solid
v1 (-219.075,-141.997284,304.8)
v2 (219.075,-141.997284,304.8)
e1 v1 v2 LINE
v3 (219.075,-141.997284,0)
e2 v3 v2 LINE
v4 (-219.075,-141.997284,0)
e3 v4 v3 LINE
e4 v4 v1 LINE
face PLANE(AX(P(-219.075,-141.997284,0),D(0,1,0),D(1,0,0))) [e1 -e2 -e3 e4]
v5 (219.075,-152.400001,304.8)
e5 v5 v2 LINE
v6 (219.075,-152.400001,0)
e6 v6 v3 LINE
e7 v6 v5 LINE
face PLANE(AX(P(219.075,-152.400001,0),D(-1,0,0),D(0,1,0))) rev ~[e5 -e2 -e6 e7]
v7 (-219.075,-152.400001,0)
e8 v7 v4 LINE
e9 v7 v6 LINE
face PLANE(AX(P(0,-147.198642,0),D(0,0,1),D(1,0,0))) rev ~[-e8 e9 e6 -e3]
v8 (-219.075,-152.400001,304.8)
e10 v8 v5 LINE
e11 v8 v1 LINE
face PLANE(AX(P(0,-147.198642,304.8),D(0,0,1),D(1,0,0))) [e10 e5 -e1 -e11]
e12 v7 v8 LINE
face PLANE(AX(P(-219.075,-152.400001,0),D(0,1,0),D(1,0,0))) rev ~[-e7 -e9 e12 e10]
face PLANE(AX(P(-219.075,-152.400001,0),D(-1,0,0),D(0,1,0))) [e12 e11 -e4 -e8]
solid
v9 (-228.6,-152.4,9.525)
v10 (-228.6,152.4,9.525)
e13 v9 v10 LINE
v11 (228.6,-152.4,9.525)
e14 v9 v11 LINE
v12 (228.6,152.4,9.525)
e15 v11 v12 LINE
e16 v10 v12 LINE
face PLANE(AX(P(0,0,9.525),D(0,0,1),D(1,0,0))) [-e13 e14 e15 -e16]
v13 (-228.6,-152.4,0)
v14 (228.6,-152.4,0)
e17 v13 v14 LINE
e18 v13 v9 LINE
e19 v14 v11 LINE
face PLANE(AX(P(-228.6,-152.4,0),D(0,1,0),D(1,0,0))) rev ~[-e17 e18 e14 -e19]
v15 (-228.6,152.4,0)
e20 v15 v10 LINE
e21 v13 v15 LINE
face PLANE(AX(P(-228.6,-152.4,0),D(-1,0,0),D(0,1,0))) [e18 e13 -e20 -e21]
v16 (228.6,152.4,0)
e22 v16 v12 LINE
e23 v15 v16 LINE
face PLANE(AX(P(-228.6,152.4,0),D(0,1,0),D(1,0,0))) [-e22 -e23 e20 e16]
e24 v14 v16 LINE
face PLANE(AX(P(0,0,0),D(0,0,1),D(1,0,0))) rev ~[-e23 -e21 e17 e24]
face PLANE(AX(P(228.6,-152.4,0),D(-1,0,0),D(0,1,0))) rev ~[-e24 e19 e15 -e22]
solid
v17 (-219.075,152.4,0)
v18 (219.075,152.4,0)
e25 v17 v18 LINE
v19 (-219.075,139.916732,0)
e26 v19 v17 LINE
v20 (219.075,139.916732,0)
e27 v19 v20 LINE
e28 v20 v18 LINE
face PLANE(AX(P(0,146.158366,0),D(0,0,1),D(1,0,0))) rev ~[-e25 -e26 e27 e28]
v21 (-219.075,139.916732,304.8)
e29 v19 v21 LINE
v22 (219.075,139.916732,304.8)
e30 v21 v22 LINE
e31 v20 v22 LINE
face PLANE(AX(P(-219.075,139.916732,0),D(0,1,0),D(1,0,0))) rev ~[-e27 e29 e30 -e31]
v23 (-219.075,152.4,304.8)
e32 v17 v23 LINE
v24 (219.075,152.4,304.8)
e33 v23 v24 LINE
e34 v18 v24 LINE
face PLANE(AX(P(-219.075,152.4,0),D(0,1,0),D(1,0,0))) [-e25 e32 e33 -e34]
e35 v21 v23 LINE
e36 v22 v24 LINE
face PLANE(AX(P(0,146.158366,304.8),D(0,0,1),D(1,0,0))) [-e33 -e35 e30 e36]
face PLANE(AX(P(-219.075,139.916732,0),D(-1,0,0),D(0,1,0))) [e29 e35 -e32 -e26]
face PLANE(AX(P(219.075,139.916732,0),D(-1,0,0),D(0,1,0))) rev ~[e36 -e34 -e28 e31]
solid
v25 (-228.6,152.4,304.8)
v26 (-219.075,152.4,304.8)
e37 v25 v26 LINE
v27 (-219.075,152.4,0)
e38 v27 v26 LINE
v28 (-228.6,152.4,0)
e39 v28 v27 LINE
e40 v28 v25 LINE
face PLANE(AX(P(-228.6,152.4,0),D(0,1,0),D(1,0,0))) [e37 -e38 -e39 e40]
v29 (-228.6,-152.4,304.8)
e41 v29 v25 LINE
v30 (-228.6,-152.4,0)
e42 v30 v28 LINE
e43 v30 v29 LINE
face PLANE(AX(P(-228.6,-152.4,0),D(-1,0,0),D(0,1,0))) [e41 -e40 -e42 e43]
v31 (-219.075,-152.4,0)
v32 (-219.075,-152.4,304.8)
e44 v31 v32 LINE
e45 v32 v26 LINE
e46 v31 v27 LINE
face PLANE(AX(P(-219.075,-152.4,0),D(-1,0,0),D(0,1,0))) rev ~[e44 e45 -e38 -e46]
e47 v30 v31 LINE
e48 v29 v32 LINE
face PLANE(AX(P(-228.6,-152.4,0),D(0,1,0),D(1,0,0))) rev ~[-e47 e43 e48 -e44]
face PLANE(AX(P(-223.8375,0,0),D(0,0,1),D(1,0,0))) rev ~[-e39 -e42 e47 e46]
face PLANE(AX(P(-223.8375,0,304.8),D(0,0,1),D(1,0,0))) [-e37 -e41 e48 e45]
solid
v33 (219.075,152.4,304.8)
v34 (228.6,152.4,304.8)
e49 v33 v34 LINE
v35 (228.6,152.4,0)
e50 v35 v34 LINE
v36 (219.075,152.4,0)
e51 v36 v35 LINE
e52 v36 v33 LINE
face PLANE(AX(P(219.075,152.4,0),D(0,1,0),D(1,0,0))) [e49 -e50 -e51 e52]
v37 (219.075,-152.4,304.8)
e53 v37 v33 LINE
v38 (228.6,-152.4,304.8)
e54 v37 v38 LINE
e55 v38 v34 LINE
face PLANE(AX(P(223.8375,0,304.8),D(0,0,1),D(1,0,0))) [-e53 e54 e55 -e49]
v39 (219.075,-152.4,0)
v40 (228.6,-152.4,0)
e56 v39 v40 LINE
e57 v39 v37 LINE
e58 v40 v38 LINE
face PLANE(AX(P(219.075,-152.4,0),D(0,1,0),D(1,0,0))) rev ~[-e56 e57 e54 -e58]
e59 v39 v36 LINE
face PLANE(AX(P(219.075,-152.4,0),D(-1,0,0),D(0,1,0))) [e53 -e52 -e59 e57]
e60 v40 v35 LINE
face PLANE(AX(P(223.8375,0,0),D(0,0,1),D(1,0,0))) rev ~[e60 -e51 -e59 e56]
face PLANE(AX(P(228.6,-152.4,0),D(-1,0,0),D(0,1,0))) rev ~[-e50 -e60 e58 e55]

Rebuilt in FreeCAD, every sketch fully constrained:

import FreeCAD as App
import Part
import Sketcher

V = App.Vector
Q = App.Units.Quantity

doc = App.newDocument("Part")
body = doc.addObject("PartDesign::Body", "Body")
body.AllowCompound = True

sketch1 = body.newObject("Sketcher::SketchObject", "Sketch")
sketch1.AttachmentSupport = (doc.getObject("XY_Plane"), [""])
sketch1.MapMode = "FlatFace"
sketch1.addGeometry(Part.LineSegment(V(-219, 152, 0), V(-219, 140, 0)), False)
sketch1.addGeometry(Part.LineSegment(V(-219, 140, 0), V(219, 140, 0)), False)
sketch1.addGeometry(Part.LineSegment(V(219, 140, 0), V(219, 152, 0)), False)
sketch1.addGeometry(Part.LineSegment(V(219, 152, 0), V(-219, 152, 0)), False)
sketch1.addGeometry(Part.LineSegment(V(-219, -142, 0), V(-219, -152, 0)), False)
sketch1.addGeometry(Part.LineSegment(V(-219, -152, 0), V(219, -152, 0)), False)
sketch1.addGeometry(Part.LineSegment(V(219, -152, 0), V(219, -142, 0)), False)
sketch1.addGeometry(Part.LineSegment(V(219, -142, 0), V(-219, -142, 0)), False)
sketch1.addConstraint(Sketcher.Constraint("Coincident", 0, 2, 1, 1))
sketch1.addConstraint(Sketcher.Constraint("Coincident", 1, 2, 2, 1))
sketch1.addConstraint(Sketcher.Constraint("Coincident", 2, 2, 3, 1))
sketch1.addConstraint(Sketcher.Constraint("Coincident", 3, 2, 0, 1))
sketch1.addConstraint(Sketcher.Constraint("Coincident", 4, 2, 5, 1))
sketch1.addConstraint(Sketcher.Constraint("Coincident", 5, 2, 6, 1))
sketch1.addConstraint(Sketcher.Constraint("Coincident", 6, 2, 7, 1))
sketch1.addConstraint(Sketcher.Constraint("Coincident", 7, 2, 4, 1))
sketch1.addConstraint(Sketcher.Constraint("Vertical", 0))
sketch1.addConstraint(Sketcher.Constraint("Horizontal", 1))
sketch1.addConstraint(Sketcher.Constraint("Vertical", 2))
sketch1.addConstraint(Sketcher.Constraint("Horizontal", 3))
sketch1.addConstraint(Sketcher.Constraint("Vertical", 4))
sketch1.addConstraint(Sketcher.Constraint("Horizontal", 5))
sketch1.addConstraint(Sketcher.Constraint("Vertical", 6))
sketch1.addConstraint(Sketcher.Constraint("Horizontal", 7))
sketch1.addConstraint(Sketcher.Constraint("Symmetric", 2, 2, 4, 2, -1, 1))
sketch1.addConstraint(Sketcher.Constraint("Vertical", 3, 2, 4, 2))
sketch1.addConstraint(Sketcher.Constraint("Vertical", 2, 2, 5, 2))
sketch1.addConstraint(Sketcher.Constraint("DistanceY", -1, 1, 2, 2, Q("6 in")))
sketch1.addConstraint(Sketcher.Constraint("DistanceX", 1, 1, 1, 2, Q("17.25 in")))
sketch1.addConstraint(Sketcher.Constraint("DistanceY", 0, 2, 0, 1, 12.483267))
sketch1.addConstraint(Sketcher.Constraint("DistanceY", 4, 2, 4, 1, 10.402717))
pad1 = body.newObject("PartDesign::Pad", "Pad")
pad1.Profile = sketch1
pad1.Length = Q("12 in")
body2 = doc.addObject("PartDesign::Body", "Body001")
body2.AllowCompound = True

sketch2 = body2.newObject("Sketcher::SketchObject", "Sketch001")
sketch2.AttachmentSupport = (doc.getObject("XY_Plane001"), [""])
sketch2.MapMode = "FlatFace"
sketch2.addGeometry(Part.LineSegment(V(-229, 152, 0), V(-229, -152, 0)), False)
sketch2.addGeometry(Part.LineSegment(V(-229, -152, 0), V(-219, -152, 0)), False)
sketch2.addGeometry(Part.LineSegment(V(-219, -152, 0), V(-219, 152, 0)), False)
sketch2.addGeometry(Part.LineSegment(V(-219, 152, 0), V(-229, 152, 0)), False)
sketch2.addGeometry(Part.LineSegment(V(219, 152, 0), V(219, -152, 0)), False)
sketch2.addGeometry(Part.LineSegment(V(219, -152, 0), V(229, -152, 0)), False)
sketch2.addGeometry(Part.LineSegment(V(229, -152, 0), V(229, 152, 0)), False)
sketch2.addGeometry(Part.LineSegment(V(229, 152, 0), V(219, 152, 0)), False)
sketch2.addConstraint(Sketcher.Constraint("Coincident", 0, 2, 1, 1))
sketch2.addConstraint(Sketcher.Constraint("Coincident", 1, 2, 2, 1))
sketch2.addConstraint(Sketcher.Constraint("Coincident", 2, 2, 3, 1))
sketch2.addConstraint(Sketcher.Constraint("Coincident", 3, 2, 0, 1))
sketch2.addConstraint(Sketcher.Constraint("Coincident", 4, 2, 5, 1))
sketch2.addConstraint(Sketcher.Constraint("Coincident", 5, 2, 6, 1))
sketch2.addConstraint(Sketcher.Constraint("Coincident", 6, 2, 7, 1))
sketch2.addConstraint(Sketcher.Constraint("Coincident", 7, 2, 4, 1))
sketch2.addConstraint(Sketcher.Constraint("Vertical", 0))
sketch2.addConstraint(Sketcher.Constraint("Horizontal", 1))
sketch2.addConstraint(Sketcher.Constraint("Vertical", 2))
sketch2.addConstraint(Sketcher.Constraint("Horizontal", 3))
sketch2.addConstraint(Sketcher.Constraint("Vertical", 4))
sketch2.addConstraint(Sketcher.Constraint("Horizontal", 5))
sketch2.addConstraint(Sketcher.Constraint("Vertical", 6))
sketch2.addConstraint(Sketcher.Constraint("Horizontal", 7))
sketch2.addConstraint(Sketcher.Constraint("Symmetric", 2, 2, 4, 2, -1, 1))
sketch2.addConstraint(Sketcher.Constraint("Symmetric", 0, 2, 6, 2, -1, 1))
sketch2.addConstraint(Sketcher.Constraint("Horizontal", 1, 2, 4, 2))
sketch2.addConstraint(Sketcher.Constraint("DistanceY", 0, 2, 0, 1, Q("12 in")))
sketch2.addConstraint(Sketcher.Constraint("DistanceX", 0, 2, -1, 1, Q("9 in")))
sketch2.addConstraint(Sketcher.Constraint("DistanceX", 1, 1, 1, 2, Q("0.375 in")))
pad2 = body2.newObject("PartDesign::Pad", "Pad001")
pad2.Profile = sketch2
pad2.Length = Q("12 in")
body3 = doc.addObject("PartDesign::Body", "Body002")

sketch3 = body3.newObject("Sketcher::SketchObject", "Sketch002")
sketch3.AttachmentSupport = (doc.getObject("XY_Plane002"), [""])
sketch3.MapMode = "FlatFace"
sketch3.addGeometry(Part.LineSegment(V(-229, 152, 0), V(-229, -152, 0)), False)
sketch3.addGeometry(Part.LineSegment(V(-229, -152, 0), V(229, -152, 0)), False)
sketch3.addGeometry(Part.LineSegment(V(229, -152, 0), V(229, 152, 0)), False)
sketch3.addGeometry(Part.LineSegment(V(229, 152, 0), V(-229, 152, 0)), False)
sketch3.addConstraint(Sketcher.Constraint("Coincident", 0, 2, 1, 1))
sketch3.addConstraint(Sketcher.Constraint("Coincident", 1, 2, 2, 1))
sketch3.addConstraint(Sketcher.Constraint("Coincident", 2, 2, 3, 1))
sketch3.addConstraint(Sketcher.Constraint("Coincident", 3, 2, 0, 1))
sketch3.addConstraint(Sketcher.Constraint("Vertical", 0))
sketch3.addConstraint(Sketcher.Constraint("Horizontal", 1))
sketch3.addConstraint(Sketcher.Constraint("Vertical", 2))
sketch3.addConstraint(Sketcher.Constraint("Horizontal", 3))
sketch3.addConstraint(Sketcher.Constraint("Symmetric", 0, 2, 2, 2, -1, 1))
sketch3.addConstraint(Sketcher.Constraint("DistanceX", 1, 1, 1, 2, Q("18 in")))
sketch3.addConstraint(Sketcher.Constraint("DistanceY", 0, 2, 0, 1, Q("12 in")))
pad3 = body3.newObject("PartDesign::Pad", "Pad002")
pad3.Profile = sketch3
pad3.Length = Q("0.375 in")

doc.recompute()
